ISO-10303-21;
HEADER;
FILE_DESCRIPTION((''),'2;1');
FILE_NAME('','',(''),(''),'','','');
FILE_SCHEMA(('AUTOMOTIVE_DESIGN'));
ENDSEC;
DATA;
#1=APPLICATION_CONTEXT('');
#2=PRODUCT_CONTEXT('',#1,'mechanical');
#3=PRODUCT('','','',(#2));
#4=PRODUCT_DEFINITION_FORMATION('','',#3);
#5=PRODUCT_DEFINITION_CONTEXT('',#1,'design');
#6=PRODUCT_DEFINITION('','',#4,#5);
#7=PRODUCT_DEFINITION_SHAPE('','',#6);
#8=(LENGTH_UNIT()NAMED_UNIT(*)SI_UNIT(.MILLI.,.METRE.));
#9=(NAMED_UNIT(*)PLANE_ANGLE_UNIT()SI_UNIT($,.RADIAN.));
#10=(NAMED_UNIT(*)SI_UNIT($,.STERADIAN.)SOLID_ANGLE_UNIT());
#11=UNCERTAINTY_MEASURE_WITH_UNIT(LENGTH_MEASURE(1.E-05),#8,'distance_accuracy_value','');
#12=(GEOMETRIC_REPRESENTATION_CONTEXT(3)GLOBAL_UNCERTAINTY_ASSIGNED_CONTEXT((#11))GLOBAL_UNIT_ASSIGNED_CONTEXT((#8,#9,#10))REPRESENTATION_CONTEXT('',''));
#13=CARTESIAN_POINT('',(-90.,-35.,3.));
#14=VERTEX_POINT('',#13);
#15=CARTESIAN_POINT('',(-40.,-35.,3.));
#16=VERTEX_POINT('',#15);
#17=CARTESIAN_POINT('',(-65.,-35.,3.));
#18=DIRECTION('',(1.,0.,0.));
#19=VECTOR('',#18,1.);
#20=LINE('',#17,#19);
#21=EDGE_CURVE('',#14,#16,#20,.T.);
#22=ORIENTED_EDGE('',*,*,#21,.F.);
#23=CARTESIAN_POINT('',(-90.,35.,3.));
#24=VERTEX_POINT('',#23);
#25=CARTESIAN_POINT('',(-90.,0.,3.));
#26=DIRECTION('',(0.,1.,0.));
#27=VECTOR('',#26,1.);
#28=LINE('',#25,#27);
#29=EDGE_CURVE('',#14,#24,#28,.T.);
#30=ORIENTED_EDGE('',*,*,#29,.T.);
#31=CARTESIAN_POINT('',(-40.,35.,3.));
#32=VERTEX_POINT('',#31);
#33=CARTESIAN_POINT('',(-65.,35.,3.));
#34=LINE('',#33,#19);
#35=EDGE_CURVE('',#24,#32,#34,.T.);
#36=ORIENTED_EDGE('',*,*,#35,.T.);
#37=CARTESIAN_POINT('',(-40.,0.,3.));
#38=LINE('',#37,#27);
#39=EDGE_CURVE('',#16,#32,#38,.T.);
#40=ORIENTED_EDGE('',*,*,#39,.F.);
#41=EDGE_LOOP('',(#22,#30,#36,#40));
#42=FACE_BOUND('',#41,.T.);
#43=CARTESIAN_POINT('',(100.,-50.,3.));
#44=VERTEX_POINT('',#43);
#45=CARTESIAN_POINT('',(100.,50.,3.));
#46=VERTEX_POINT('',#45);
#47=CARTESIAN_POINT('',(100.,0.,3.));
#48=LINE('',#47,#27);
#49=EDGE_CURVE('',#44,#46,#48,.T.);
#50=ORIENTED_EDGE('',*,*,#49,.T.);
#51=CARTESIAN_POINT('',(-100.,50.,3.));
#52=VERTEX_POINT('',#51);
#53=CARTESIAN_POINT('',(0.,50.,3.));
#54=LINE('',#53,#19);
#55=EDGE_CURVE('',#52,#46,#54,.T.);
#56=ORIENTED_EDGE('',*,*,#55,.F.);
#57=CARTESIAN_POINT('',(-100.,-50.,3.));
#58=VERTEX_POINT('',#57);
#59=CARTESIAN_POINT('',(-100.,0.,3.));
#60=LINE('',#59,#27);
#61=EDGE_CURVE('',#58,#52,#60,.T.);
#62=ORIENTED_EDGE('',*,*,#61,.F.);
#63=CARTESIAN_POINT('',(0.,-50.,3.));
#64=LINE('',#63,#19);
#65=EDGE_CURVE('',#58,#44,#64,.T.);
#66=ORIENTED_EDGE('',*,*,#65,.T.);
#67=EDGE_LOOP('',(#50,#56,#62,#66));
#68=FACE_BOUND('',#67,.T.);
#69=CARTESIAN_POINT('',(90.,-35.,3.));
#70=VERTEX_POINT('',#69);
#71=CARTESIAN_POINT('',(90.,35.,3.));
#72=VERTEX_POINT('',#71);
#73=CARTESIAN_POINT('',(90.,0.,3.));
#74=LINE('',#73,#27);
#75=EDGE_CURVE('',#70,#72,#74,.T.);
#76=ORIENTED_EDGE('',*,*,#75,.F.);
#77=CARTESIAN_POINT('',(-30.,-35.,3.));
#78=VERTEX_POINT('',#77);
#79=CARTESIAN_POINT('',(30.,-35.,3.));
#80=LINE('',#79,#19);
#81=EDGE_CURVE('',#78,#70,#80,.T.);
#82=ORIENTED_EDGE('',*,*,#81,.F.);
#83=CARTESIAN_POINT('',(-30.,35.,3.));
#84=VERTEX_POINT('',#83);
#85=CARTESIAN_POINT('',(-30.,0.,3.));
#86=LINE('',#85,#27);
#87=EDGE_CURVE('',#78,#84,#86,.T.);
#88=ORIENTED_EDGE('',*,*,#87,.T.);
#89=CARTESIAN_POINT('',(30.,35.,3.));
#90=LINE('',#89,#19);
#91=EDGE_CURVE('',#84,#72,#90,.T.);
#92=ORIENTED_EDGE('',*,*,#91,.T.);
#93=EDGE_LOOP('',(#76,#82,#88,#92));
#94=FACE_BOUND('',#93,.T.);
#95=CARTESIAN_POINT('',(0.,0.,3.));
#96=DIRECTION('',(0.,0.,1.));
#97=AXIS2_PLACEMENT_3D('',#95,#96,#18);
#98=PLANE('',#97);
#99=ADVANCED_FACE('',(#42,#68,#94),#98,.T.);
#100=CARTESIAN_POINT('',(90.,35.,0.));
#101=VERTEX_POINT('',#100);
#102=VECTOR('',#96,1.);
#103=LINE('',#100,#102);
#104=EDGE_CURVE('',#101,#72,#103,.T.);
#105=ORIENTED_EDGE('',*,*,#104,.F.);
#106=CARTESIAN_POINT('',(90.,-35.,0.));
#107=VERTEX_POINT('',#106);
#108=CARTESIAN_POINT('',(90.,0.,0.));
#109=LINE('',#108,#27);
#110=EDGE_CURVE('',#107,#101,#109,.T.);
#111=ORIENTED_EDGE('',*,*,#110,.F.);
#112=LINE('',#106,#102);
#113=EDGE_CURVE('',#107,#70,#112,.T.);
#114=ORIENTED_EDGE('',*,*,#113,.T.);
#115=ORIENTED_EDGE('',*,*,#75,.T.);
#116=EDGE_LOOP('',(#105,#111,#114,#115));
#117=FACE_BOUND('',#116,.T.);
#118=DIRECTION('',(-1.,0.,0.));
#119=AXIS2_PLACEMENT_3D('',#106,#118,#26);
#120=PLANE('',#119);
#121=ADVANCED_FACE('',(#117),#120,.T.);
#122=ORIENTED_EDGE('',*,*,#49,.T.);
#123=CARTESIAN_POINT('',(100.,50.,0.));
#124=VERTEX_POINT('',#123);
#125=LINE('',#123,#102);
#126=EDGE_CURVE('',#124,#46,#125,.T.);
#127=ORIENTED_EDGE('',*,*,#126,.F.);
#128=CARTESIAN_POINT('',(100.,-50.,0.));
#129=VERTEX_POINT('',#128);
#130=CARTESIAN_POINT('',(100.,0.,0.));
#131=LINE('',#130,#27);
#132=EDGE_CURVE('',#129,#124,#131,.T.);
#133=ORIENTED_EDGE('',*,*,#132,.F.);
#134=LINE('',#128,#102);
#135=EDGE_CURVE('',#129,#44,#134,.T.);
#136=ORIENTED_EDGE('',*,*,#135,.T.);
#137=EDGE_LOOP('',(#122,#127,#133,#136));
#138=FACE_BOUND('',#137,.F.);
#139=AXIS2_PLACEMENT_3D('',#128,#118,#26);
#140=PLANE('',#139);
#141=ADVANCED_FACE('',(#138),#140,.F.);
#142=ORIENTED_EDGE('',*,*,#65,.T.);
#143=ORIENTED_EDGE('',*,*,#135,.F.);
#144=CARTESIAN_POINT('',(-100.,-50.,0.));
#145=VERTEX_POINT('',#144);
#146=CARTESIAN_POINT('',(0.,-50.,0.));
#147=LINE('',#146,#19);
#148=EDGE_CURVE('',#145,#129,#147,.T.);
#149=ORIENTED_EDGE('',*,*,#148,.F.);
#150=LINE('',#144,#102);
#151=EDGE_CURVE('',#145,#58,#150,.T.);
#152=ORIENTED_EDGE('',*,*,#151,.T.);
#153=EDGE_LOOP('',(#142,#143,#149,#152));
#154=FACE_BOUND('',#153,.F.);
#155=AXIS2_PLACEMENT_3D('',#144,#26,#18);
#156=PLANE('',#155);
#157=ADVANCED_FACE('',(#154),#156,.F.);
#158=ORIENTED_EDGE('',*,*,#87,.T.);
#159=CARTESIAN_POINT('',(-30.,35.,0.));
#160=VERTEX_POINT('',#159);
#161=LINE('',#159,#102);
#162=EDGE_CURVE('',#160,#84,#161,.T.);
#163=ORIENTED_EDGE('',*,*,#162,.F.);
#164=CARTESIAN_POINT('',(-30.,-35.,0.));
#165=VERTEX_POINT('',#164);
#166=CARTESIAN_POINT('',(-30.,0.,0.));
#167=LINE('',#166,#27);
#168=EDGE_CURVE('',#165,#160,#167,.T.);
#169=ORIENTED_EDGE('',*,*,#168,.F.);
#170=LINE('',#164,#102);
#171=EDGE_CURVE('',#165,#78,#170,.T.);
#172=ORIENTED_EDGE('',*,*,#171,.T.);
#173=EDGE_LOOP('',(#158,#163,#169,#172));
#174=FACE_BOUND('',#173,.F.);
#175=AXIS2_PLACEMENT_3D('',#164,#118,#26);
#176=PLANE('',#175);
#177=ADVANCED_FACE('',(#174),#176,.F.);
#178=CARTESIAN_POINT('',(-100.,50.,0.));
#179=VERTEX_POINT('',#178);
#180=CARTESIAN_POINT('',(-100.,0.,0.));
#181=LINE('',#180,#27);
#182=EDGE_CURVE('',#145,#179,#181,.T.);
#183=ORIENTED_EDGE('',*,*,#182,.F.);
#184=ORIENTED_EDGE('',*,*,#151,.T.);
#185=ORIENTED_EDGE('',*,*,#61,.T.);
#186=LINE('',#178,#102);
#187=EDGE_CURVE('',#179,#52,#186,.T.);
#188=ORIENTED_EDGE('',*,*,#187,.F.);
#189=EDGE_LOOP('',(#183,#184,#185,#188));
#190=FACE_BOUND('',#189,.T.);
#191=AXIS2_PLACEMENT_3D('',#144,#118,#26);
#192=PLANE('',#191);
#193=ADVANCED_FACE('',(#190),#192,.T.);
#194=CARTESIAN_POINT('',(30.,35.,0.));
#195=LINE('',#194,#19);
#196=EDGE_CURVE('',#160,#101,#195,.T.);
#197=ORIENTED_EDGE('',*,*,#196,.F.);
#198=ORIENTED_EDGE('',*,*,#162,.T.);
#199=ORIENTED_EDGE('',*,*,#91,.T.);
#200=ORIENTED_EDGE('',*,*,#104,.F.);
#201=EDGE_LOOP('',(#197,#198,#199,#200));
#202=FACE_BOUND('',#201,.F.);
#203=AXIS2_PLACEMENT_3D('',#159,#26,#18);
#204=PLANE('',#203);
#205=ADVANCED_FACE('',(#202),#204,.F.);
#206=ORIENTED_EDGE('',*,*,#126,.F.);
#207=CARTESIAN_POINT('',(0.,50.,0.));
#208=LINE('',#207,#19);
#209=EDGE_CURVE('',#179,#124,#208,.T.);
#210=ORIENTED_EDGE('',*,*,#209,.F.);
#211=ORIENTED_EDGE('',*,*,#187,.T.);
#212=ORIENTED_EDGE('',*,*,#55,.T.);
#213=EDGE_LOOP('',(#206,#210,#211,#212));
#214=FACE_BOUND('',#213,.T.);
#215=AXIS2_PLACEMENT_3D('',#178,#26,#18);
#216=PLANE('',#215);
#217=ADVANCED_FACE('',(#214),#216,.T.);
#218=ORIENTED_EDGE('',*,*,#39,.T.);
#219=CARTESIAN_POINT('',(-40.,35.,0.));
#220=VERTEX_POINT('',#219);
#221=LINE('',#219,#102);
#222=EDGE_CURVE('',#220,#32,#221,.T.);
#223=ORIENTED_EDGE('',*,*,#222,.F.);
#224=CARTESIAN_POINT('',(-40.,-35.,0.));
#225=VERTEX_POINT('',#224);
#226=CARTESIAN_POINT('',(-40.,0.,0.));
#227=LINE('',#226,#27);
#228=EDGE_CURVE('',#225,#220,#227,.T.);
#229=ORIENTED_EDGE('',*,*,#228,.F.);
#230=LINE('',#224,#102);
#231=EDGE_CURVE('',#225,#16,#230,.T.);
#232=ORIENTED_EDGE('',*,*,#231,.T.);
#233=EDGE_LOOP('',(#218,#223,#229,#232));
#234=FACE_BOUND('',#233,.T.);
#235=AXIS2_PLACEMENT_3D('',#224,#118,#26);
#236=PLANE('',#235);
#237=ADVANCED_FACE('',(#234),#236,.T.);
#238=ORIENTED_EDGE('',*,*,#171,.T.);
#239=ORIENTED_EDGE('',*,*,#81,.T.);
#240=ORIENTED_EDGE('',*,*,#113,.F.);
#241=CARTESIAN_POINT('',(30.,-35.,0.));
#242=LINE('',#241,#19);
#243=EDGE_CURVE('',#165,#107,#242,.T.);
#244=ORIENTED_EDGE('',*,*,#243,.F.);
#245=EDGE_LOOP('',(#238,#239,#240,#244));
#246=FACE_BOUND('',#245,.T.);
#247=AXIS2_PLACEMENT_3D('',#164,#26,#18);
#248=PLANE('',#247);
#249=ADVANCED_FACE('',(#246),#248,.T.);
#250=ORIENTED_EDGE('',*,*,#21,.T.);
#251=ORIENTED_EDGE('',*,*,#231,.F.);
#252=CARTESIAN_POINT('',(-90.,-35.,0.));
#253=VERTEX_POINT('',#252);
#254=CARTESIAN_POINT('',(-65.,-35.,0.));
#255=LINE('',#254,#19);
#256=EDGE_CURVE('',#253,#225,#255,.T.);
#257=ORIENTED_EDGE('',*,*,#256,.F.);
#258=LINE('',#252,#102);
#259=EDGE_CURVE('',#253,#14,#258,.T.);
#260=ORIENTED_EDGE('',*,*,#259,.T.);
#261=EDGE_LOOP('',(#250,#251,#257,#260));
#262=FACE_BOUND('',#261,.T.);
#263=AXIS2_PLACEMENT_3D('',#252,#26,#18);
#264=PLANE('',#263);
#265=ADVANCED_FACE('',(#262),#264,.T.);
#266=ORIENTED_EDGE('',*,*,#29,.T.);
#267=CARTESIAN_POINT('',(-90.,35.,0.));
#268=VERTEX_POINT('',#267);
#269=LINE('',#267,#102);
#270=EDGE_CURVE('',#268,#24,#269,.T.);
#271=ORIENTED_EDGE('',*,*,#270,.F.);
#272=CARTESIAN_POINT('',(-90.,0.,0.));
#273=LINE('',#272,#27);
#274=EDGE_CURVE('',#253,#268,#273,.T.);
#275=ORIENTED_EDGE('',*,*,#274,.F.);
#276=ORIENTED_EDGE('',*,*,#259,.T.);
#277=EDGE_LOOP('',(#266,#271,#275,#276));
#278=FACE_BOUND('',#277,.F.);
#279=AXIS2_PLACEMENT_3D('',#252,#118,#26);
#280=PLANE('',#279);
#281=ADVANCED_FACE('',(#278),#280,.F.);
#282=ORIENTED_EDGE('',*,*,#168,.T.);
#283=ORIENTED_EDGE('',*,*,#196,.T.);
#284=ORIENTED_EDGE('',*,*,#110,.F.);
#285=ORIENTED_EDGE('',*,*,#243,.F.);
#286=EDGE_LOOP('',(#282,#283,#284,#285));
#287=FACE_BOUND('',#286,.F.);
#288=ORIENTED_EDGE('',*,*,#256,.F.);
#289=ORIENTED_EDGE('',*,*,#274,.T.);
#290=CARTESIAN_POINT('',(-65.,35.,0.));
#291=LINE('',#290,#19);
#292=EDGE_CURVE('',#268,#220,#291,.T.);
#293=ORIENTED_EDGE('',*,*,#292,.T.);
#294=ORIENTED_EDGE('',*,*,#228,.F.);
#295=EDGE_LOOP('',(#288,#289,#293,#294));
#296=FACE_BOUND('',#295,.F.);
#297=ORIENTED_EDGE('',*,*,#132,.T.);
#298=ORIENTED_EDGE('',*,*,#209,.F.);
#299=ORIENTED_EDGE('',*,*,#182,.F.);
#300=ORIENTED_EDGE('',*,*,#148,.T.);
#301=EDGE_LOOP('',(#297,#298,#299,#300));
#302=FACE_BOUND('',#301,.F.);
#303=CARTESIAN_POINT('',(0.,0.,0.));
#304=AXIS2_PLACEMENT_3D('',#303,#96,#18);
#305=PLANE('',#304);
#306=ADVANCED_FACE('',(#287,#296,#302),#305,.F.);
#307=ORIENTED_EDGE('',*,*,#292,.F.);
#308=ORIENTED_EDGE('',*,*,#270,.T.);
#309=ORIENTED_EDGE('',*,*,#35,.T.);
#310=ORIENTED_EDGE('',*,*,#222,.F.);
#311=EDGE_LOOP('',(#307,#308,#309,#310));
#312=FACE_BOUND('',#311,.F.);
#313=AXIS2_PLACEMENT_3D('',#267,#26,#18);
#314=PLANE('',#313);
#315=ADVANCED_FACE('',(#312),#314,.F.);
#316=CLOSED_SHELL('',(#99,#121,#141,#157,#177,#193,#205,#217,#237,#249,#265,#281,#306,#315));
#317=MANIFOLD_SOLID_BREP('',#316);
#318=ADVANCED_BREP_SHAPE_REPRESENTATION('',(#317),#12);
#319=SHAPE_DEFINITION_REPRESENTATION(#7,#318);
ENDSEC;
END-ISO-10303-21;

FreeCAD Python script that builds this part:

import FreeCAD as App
import Part
import Sketcher

V = App.Vector

doc = App.newDocument("Part")
body = doc.addObject("PartDesign::Body", "Body")

# Sketch on XY plane
sketch1 = body.newObject("Sketcher::SketchObject", "Sketch")
sketch1.AttachmentSupport = (doc.getObject("XY_Plane"), [""])
sketch1.MapMode = "FlatFace"
sketch1.addGeometry(Part.LineSegment(V(-100, 50, 0), V(-100, -50, 0)), False)
sketch1.addGeometry(Part.LineSegment(V(-100, -50, 0), V(100, -50, 0)), False)
sketch1.addGeometry(Part.LineSegment(V(100, -50, 0), V(100, 50, 0)), False)
sketch1.addGeometry(Part.LineSegment(V(100, 50, 0), V(-100, 50, 0)), False)
sketch1.addGeometry(Part.LineSegment(V(-40, -35, 0), V(-90, -35, 0)), False)
sketch1.addGeometry(Part.LineSegment(V(-90, -35, 0), V(-90, 35, 0)), False)
sketch1.addGeometry(Part.LineSegment(V(-90, 35, 0), V(-40, 35, 0)), False)
sketch1.addGeometry(Part.LineSegment(V(-40, 35, 0), V(-40, -35, 0)), False)
sketch1.addGeometry(Part.LineSegment(V(90, -35, 0), V(-30, -35, 0)), False)
sketch1.addGeometry(Part.LineSegment(V(-30, -35, 0), V(-30, 35, 0)), False)
sketch1.addGeometry(Part.LineSegment(V(-30, 35, 0), V(90, 35, 0)), False)
sketch1.addGeometry(Part.LineSegment(V(90, 35, 0), V(90, -35, 0)), False)
sketch1.addConstraint(Sketcher.Constraint("Coincident", 0, 2, 1, 1))
sketch1.addConstraint(Sketcher.Constraint("Coincident", 1, 2, 2, 1))
sketch1.addConstraint(Sketcher.Constraint("Coincident", 2, 2, 3, 1))
sketch1.addConstraint(Sketcher.Constraint("Coincident", 3, 2, 0, 1))
sketch1.addConstraint(Sketcher.Constraint("Coincident", 4, 2, 5, 1))
sketch1.addConstraint(Sketcher.Constraint("Coincident", 5, 2, 6, 1))
sketch1.addConstraint(Sketcher.Constraint("Coincident", 6, 2, 7, 1))
sketch1.addConstraint(Sketcher.Constraint("Coincident", 7, 2, 4, 1))
sketch1.addConstraint(Sketcher.Constraint("Coincident", 8, 2, 9, 1))
sketch1.addConstraint(Sketcher.Constraint("Coincident", 9, 2, 10, 1))
sketch1.addConstraint(Sketcher.Constraint("Coincident", 10, 2, 11, 1))
sketch1.addConstraint(Sketcher.Constraint("Coincident", 11, 2, 8, 1))
sketch1.addConstraint(Sketcher.Constraint("Vertical", 0))
sketch1.addConstraint(Sketcher.Constraint("Horizontal", 1))
sketch1.addConstraint(Sketcher.Constraint("Vertical", 2))
sketch1.addConstraint(Sketcher.Constraint("Horizontal", 3))
sketch1.addConstraint(Sketcher.Constraint("Horizontal", 4))
sketch1.addConstraint(Sketcher.Constraint("Vertical", 5))
sketch1.addConstraint(Sketcher.Constraint("Horizontal", 6))
sketch1.addConstraint(Sketcher.Constraint("Vertical", 7))
sketch1.addConstraint(Sketcher.Constraint("Horizontal", 8))
sketch1.addConstraint(Sketcher.Constraint("Vertical", 9))
sketch1.addConstraint(Sketcher.Constraint("Horizontal", 10))
sketch1.addConstraint(Sketcher.Constraint("Vertical", 11))
sketch1.addConstraint(Sketcher.Constraint("Symmetric", 0, 2, 2, 2, -1, 1))
sketch1.addConstraint(Sketcher.Constraint("Symmetric", 4, 2, 10, 2, -1, 1))
sketch1.addConstraint(Sketcher.Constraint("Horizontal", 7, 2, 8, 2))
sketch1.addConstraint(Sketcher.Constraint("Horizontal", 6, 2, 9, 2))
sketch1.addConstraint(Sketcher.Constraint("DistanceX", 1, 1, 1, 2, 200.0))
sketch1.addConstraint(Sketcher.Constraint("DistanceX", 4, 2, 4, 1, 50.0))
sketch1.addConstraint(Sketcher.Constraint("DistanceX", 8, 2, 8, 1, 120.0))
sketch1.addConstraint(Sketcher.Constraint("DistanceY", 0, 2, 0, 1, 100.0))
sketch1.addConstraint(Sketcher.Constraint("DistanceY", 5, 1, 5, 2, 70.0))
sketch1.addConstraint(Sketcher.Constraint("DistanceX", 4, 2, -1, 1, 90.0))
pad1 = body.newObject("PartDesign::Pad", "Pad")
pad1.Profile = sketch1
pad1.Length = 3

doc.recompute()
